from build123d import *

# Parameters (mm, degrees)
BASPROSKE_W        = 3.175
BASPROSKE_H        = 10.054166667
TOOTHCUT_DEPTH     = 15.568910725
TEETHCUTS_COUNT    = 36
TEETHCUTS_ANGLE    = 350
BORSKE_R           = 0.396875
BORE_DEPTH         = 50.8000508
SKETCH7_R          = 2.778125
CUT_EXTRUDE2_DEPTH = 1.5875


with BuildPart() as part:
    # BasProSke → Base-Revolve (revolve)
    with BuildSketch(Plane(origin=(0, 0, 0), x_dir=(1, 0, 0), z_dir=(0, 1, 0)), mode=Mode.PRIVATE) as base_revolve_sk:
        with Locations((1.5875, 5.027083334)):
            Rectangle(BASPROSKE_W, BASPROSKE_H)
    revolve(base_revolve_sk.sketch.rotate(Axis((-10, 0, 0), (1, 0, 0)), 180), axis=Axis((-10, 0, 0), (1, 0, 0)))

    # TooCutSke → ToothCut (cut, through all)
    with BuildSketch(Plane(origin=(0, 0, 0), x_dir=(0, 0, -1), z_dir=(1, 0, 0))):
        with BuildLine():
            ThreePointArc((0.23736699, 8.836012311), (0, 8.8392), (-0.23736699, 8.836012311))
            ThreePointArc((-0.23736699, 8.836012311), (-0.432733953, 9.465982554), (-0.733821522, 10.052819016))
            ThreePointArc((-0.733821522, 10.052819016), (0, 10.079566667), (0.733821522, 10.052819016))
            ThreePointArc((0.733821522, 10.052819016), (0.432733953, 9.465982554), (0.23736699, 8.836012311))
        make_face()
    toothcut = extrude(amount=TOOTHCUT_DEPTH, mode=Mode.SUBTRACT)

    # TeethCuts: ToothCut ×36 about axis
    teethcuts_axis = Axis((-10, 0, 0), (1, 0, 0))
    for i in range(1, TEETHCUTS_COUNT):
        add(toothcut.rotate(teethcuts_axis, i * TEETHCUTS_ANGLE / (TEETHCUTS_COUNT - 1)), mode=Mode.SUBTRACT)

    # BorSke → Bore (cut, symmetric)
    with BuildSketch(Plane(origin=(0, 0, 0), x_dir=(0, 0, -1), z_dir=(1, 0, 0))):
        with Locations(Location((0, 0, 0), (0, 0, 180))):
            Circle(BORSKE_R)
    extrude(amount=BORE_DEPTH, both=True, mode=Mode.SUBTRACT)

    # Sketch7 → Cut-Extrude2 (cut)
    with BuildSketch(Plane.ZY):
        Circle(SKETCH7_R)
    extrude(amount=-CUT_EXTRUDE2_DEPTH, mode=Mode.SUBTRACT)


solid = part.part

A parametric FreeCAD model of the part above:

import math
import FreeCAD as App
import Part
import Sketcher
from FreeCAD import Vector
Q = App.Units.Quantity


def add_polygon(sketch, points):
    """Adds a closed chain of lines whose ends are joined by coincident constraints."""
    first, n = sketch.GeometryCount, len(points)
    for a, b in zip(points, points[1:] + points[:1]):
        sketch.addGeometry(Part.LineSegment(App.Vector(*a, 0), App.Vector(*b, 0)), False)
    for i in range(n):
        sketch.addConstraint(Sketcher.Constraint("Coincident", first + i, 2, first + (i + 1) % n, 1))

doc = App.newDocument("Part")
body = doc.addObject("PartDesign::Body", "Body")

# Sketch on XZ plane
sketch1 = doc.addObject("Sketcher::SketchObject", "Sketch")
body.addObject(sketch1)
sketch1.AttachmentSupport = (doc.XZ_Plane, [""])
sketch1.MapMode = "FlatFace"
add_polygon(sketch1, [(0, -10.054167), (0, 0), (3.175, 0), (3.175, -10.054167)])  # lines 0-3
sketch1.addConstraint(Sketcher.Constraint("Vertical", 0))
sketch1.addConstraint(Sketcher.Constraint("Horizontal", 1))
sketch1.addConstraint(Sketcher.Constraint("Vertical", 2))
sketch1.addConstraint(Sketcher.Constraint("Horizontal", 3))
sketch1.addConstraint(Sketcher.Constraint("Coincident", 0, 2, -1, 1))
sketch1.addConstraint(Sketcher.Constraint("DistanceX", 1, 1, 1, 2, Q("0.125 in")))
sketch1.addConstraint(Sketcher.Constraint("DistanceY", 0, 1, 0, 2, 10.054167))
revolution = doc.addObject("PartDesign::Revolution", "Revolution")
body.addObject(revolution)
revolution.Profile = sketch1
revolution.ReferenceAxis = (sketch1, ["H_Axis"])
revolution.Angle = 360

# Sketch on YZ plane
sketch2 = doc.addObject("Sketcher::SketchObject", "Sketch001")
body.addObject(sketch2)
sketch2.AttachmentSupport = (doc.YZ_Plane, [""])
sketch2.MapMode = "FlatFace"
sketch2.addGeometry(Part.ArcOfCircle(Part.Circle(Vector(-0.000001, 0, 0), Vector(0, 0, 1), 8.839201), math.radians(-1.5388), math.radians(1.5388)), False)
sketch2.addGeometry(Part.ArcOfCircle(Part.Circle(Vector(8.026695, -3.960418, 0), Vector(0, 0, 1), 3.81), math.radians(57.873452), math.radians(77.735839)), False)
sketch2.addGeometry(Part.ArcOfCircle(Part.Circle(Vector(0, 0, 0), Vector(0, 0, 1), 10.079567), math.radians(-4.174992), math.radians(4.174992)), False)
sketch2.addGeometry(Part.ArcOfCircle(Part.Circle(Vector(8.026695, 3.960418, 0), Vector(0, 0, 1), 3.81), math.radians(-77.735839), math.radians(-57.873452)), False)
sketch2.addConstraint(Sketcher.Constraint("Coincident", 0, 1, 1, 2))
sketch2.addConstraint(Sketcher.Constraint("Coincident", 1, 1, 2, 1))
sketch2.addConstraint(Sketcher.Constraint("Coincident", 2, 2, 3, 2))
sketch2.addConstraint(Sketcher.Constraint("Coincident", 3, 1, 0, 2))
sketch2.addConstraint(Sketcher.Constraint("Coincident", 0, 3, -1, 1))
sketch2.addConstraint(Sketcher.Constraint("Coincident", 2, 3, -1, 1))
sketch2.addConstraint(Sketcher.Constraint("Equal", 1, 3))
sketch2.addConstraint(Sketcher.Constraint("Symmetric", 1, 3, 3, 3, -1))
sketch2.addConstraint(Sketcher.Constraint("Radius", 1, Q("0.15 in")))
sketch2.addConstraint(Sketcher.Constraint("Radius", 0, Q("0.348 in")))
sketch2.addConstraint(Sketcher.Constraint("Radius", 2, 10.079567))
sketch2.addConstraint(Sketcher.Constraint("DistanceX", -1, 1, 1, 1, 10.052819))
sketch2.addConstraint(Sketcher.Constraint("DistanceY", 1, 3, 0, 1, 3.723051))
pocket1 = doc.addObject("PartDesign::Pocket", "Pocket")
body.addObject(pocket1)
pocket1.Profile = sketch2
pocket1.Type = "ThroughAll"
pocket1.Reversed = True
doc.recompute()

polarpattern = doc.addObject("PartDesign::PolarPattern", "PolarPattern")
body.addObject(polarpattern)
polarpattern.Originals = [pocket1]
polarpattern.Axis = (doc.X_Axis, [""])
polarpattern.Angle = 360
polarpattern.Occurrences = 36
body.Tip = polarpattern

# Sketch on YZ plane
sketch3 = doc.addObject("Sketcher::SketchObject", "Sketch002")
body.addObject(sketch3)
sketch3.AttachmentSupport = (doc.YZ_Plane, [""])
sketch3.MapMode = "FlatFace"
sketch3.addGeometry(Part.Circle(Vector(0, 0, 0), Vector(0, 0, 1), 0.396875), False)
sketch3.addConstraint(Sketcher.Constraint("Coincident", 0, 3, -1, 1))
sketch3.addConstraint(Sketcher.Constraint("Diameter", 0, Q("0.03125 in")))
pocket2 = doc.addObject("PartDesign::Pocket", "Pocket001")
body.addObject(pocket2)
pocket2.Profile = sketch3
pocket2.Length = 101.600102
pocket2.Midplane = True

# Sketch on YZ plane
sketch4 = doc.addObject("Sketcher::SketchObject", "Sketch003")
body.addObject(sketch4)
sketch4.AttachmentSupport = (doc.YZ_Plane, [""])
sketch4.MapMode = "FlatFace"
sketch4.addGeometry(Part.Circle(Vector(0, 0, 0), Vector(0, 0, 1), 2.778125), False)
sketch4.addConstraint(Sketcher.Constraint("Coincident", 0, 3, -1, 1))
sketch4.addConstraint(Sketcher.Constraint("Diameter", 0, Q("0.21875 in")))
pocket3 = doc.addObject("PartDesign::Pocket", "Pocket002")
body.addObject(pocket3)
pocket3.Profile = sketch4
pocket3.Length = Q("0.0625 in")
pocket3.Reversed = True

doc.recompute()
